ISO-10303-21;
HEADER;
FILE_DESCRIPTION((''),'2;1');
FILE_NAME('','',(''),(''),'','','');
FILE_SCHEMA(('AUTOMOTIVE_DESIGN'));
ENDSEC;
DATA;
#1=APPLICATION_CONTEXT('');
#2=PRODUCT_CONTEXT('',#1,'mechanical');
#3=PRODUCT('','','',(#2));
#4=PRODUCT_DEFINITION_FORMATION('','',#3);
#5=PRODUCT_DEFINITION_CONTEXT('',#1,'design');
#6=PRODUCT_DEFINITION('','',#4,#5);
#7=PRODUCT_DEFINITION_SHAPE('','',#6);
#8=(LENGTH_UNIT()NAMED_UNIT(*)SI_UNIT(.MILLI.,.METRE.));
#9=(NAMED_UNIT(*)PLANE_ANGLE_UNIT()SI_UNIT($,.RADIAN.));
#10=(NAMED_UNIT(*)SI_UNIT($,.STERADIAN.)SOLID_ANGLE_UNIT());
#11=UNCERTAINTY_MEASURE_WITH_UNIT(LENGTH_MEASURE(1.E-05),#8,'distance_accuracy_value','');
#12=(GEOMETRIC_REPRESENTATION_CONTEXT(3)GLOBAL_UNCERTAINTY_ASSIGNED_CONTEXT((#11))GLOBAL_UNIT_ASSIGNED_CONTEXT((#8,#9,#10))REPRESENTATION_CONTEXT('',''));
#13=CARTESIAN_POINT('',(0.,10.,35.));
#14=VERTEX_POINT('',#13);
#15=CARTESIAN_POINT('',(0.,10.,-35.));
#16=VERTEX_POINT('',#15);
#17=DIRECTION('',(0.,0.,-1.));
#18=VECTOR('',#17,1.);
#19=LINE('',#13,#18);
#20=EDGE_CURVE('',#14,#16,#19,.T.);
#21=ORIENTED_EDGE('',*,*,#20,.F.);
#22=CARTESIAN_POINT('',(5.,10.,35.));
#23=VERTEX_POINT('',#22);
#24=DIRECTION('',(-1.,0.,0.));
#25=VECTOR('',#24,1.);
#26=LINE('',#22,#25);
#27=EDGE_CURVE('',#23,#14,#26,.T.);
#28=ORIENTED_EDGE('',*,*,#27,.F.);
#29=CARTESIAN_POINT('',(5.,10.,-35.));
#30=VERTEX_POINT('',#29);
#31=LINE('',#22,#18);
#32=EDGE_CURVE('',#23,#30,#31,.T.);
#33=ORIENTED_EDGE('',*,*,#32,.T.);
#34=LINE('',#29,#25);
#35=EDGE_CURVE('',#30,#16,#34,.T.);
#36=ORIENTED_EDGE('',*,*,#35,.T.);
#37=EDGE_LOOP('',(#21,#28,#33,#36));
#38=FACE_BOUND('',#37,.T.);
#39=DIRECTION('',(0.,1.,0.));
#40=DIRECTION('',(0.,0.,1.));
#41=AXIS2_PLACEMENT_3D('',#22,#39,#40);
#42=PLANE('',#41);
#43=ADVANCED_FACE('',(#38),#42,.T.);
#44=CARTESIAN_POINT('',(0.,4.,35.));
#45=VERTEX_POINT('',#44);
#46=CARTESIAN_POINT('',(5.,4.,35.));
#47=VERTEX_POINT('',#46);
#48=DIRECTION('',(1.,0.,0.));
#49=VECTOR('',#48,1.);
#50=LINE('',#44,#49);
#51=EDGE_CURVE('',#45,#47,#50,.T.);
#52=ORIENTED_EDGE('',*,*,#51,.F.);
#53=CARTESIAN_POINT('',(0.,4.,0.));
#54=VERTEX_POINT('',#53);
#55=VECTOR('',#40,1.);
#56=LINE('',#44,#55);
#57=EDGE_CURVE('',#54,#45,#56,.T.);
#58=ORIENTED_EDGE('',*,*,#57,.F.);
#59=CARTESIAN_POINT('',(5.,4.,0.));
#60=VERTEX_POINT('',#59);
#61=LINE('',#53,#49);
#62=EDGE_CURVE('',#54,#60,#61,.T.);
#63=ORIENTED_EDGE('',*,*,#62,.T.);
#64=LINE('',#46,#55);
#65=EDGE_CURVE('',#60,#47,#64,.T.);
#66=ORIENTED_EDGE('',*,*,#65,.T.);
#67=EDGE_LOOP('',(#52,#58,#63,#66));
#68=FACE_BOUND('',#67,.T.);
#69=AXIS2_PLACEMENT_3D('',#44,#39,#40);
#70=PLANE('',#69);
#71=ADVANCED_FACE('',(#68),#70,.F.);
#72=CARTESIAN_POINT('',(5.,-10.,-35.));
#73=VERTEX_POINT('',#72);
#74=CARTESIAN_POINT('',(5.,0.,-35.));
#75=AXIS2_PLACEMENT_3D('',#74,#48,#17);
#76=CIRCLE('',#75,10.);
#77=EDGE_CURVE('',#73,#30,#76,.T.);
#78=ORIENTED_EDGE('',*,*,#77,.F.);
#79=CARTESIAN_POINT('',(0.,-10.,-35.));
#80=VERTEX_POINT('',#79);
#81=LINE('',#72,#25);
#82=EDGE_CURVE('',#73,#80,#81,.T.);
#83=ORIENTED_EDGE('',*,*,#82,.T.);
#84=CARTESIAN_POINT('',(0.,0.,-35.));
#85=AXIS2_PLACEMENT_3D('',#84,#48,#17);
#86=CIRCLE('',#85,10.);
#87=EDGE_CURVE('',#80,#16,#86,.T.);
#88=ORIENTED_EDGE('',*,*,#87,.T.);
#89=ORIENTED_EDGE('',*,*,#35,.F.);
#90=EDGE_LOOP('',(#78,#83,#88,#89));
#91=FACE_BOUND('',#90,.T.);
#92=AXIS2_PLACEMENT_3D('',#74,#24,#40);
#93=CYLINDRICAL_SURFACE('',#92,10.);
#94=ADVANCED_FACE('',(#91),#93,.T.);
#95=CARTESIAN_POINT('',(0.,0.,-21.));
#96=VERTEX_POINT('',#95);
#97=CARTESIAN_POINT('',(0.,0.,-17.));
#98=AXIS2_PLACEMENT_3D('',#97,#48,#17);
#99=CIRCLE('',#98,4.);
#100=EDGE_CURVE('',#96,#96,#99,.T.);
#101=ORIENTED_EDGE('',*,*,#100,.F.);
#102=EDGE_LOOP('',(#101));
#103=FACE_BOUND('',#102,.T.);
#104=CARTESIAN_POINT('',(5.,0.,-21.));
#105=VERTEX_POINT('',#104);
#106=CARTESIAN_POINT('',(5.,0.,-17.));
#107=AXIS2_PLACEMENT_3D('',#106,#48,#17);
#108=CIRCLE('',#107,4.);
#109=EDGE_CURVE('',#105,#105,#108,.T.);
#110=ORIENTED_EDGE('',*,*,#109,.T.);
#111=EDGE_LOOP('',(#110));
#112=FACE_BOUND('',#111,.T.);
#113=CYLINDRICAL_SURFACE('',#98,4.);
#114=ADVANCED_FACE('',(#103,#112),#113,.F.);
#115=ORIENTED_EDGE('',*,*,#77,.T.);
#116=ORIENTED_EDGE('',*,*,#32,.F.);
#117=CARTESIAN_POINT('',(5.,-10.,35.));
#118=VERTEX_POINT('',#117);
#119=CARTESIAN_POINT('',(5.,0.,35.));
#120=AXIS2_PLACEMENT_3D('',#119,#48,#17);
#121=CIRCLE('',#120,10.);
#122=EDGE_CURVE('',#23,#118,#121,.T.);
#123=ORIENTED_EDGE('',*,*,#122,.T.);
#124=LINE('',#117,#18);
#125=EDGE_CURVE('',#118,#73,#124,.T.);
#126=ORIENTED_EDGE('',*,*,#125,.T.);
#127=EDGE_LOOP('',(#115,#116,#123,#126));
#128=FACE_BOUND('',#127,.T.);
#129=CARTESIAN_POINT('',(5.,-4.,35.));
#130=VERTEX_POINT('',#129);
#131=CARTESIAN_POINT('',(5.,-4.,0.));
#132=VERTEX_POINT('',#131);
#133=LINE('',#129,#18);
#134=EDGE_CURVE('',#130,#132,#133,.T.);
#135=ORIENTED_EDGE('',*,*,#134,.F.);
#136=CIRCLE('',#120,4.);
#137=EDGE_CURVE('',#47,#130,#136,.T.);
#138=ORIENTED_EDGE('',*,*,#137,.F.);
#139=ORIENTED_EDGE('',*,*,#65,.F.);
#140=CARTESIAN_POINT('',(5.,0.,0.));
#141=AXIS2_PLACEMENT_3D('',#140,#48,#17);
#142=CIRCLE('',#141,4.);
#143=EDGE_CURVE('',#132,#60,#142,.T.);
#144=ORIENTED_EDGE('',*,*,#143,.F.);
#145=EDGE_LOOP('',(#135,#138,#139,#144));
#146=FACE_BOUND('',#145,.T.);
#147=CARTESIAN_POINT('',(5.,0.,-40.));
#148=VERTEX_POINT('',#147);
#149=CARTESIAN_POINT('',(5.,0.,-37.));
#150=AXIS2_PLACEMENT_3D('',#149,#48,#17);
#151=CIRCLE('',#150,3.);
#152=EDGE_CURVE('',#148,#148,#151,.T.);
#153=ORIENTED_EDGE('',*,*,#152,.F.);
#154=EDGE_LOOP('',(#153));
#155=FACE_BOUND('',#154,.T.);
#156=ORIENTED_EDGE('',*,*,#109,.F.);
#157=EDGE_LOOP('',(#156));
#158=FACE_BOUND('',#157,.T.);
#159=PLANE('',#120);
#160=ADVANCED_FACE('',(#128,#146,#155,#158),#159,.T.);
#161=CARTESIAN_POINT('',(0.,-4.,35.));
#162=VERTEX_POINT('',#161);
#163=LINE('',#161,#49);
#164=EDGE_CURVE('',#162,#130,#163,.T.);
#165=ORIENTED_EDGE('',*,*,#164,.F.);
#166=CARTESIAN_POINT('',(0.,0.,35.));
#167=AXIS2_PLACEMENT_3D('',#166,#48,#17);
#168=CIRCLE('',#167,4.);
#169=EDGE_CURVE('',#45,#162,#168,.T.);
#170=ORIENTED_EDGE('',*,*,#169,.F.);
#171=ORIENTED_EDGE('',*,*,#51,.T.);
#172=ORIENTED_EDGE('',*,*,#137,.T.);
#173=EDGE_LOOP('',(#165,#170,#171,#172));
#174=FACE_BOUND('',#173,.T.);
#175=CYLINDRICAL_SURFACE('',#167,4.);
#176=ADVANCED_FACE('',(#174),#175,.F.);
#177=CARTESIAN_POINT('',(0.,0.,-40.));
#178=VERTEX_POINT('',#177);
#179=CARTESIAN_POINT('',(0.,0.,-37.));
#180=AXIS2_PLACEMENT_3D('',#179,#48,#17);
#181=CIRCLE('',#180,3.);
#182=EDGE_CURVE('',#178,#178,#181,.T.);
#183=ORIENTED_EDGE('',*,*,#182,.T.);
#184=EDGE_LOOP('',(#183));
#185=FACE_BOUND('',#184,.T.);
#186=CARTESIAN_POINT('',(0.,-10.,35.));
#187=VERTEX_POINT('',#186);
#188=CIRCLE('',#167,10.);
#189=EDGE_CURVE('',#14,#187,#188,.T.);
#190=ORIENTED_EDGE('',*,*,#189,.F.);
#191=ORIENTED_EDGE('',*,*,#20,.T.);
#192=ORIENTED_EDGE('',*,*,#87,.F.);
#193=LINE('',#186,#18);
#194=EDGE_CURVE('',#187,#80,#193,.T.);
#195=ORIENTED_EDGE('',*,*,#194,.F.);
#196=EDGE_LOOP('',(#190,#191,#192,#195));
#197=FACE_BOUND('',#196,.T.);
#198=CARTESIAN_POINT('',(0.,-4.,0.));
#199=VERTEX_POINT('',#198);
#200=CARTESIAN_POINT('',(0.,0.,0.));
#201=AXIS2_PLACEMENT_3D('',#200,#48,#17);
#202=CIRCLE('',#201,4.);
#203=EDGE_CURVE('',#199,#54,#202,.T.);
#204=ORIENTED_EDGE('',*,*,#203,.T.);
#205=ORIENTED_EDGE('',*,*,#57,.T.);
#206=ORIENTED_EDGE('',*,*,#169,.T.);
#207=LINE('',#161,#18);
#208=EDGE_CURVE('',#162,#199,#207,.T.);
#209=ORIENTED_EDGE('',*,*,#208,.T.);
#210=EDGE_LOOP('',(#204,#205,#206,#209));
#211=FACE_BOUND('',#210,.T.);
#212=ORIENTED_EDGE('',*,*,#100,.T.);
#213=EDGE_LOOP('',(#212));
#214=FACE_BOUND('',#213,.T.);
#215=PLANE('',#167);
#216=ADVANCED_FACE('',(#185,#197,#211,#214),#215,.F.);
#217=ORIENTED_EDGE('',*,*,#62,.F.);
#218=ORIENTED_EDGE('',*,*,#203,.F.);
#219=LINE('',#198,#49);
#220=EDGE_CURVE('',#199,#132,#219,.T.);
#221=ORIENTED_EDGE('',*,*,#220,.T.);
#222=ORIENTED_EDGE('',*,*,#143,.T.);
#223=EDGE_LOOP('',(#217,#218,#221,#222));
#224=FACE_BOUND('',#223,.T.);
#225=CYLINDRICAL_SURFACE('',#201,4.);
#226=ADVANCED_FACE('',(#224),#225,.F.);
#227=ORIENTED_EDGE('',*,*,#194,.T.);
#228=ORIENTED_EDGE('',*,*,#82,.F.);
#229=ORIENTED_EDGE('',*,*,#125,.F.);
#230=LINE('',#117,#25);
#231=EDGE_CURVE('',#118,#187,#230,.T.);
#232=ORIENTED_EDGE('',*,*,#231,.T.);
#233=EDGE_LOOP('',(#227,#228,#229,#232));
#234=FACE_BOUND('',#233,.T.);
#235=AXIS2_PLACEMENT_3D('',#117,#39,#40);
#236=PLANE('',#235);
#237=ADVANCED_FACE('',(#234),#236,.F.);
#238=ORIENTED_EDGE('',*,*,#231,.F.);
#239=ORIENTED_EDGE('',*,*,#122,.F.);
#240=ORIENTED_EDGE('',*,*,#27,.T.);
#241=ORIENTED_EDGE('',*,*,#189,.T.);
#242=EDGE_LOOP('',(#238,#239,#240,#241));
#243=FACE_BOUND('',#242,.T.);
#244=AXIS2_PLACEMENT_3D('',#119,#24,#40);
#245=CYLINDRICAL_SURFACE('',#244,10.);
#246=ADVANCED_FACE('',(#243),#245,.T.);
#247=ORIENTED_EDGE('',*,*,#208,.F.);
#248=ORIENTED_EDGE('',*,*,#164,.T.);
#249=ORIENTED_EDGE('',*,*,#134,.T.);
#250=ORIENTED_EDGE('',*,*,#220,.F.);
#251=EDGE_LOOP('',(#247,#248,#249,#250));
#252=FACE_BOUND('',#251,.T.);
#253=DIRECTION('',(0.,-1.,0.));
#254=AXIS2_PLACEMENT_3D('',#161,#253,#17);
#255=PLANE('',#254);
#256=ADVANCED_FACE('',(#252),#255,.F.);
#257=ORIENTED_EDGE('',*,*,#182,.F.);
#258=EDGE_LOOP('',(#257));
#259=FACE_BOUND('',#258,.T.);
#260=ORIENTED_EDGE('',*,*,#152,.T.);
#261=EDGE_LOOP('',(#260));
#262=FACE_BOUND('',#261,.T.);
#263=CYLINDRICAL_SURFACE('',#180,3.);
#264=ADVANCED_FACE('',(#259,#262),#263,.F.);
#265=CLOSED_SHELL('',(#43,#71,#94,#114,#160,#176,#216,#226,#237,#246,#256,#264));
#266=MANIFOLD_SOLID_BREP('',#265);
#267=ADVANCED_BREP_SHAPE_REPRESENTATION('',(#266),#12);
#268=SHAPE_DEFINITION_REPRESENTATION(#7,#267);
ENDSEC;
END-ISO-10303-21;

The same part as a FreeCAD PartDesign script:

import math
import FreeCAD as App
import Part
import Sketcher
Q = App.Units.Quantity

doc = App.newDocument("Part")
params = doc.addObject("Spreadsheet::Sheet", "Params")
for row, (alias, value) in enumerate([
    ("sketch1_radius", "10 mm"),
    ("sketch1_height", "70 mm"),
    ("pad1_length", "5 mm"),
    ("sketch2_diameter", "8 mm"),
    ("sketch2_diameter2", "6 mm"),
    ("sketch2_height", "35 mm"),
], start=1):
    params.set(f"A{row}", alias)
    params.set(f"B{row}", "=" + value)
    params.setAlias(f"B{row}", alias)

body = doc.addObject("PartDesign::Body", "Body")

# Sketch on YZ plane
sketch1 = body.newObject("Sketcher::SketchObject", "Sketch")
sketch1.AttachmentSupport = (doc.getObject("YZ_Plane"), [""])
sketch1.MapMode = "FlatFace"
sketch1.addGeometry([
    Part.LineSegment(App.Vector(10, -35, 0), App.Vector(10, 35, 0)),
    Part.ArcOfCircle(Part.Circle(App.Vector(0, 35, 0), App.Vector(0, 0, 1), 10), math.radians(0), math.radians(180)),
    Part.LineSegment(App.Vector(-10, 35, 0), App.Vector(-10, -35, 0)),
    Part.ArcOfCircle(Part.Circle(App.Vector(0, -35, 0), App.Vector(0, 0, 1), 10), math.radians(180), math.radians(360)),
], False)
sketch1.addConstraint([
    Sketcher.Constraint("Tangent", 0, 2, 1, 1),
    Sketcher.Constraint("Tangent", 1, 2, 2, 1),
    Sketcher.Constraint("Tangent", 2, 2, 3, 1),
    Sketcher.Constraint("Tangent", 3, 2, 0, 1),
    Sketcher.Constraint("Vertical", 0),
    Sketcher.Constraint("Vertical", 2),
    Sketcher.Constraint("Symmetric", 1, 3, 3, 3, -1, 1),
    Sketcher.Constraint("Radius", 1, Q("10 mm")),
    Sketcher.Constraint("DistanceY", 0, 1, 0, 2, Q("70 mm")),
])
sketch1.setExpression("Constraints[7]", "Params.sketch1_radius")
sketch1.setExpression("Constraints[8]", "Params.sketch1_height")
pad1 = body.newObject("PartDesign::Pad", "Pad")
pad1.Profile = sketch1
pad1.setExpression("Length", "Params.pad1_length")

# Sketch on YZ plane
sketch2 = body.newObject("Sketcher::SketchObject", "Sketch001")
sketch2.AttachmentSupport = (doc.getObject("YZ_Plane"), [""])
sketch2.MapMode = "FlatFace"
sketch2.AttachmentOffset = App.Placement(App.Vector(0, 0, 5), App.Rotation())
sketch2.addGeometry([
    Part.Circle(App.Vector(0, -17, 0), App.Vector(0, 0, 1), 4),  # 0
    Part.Circle(App.Vector(0, -37, 0), App.Vector(0, 0, 1), 3),  # 1
    Part.LineSegment(App.Vector(4, 0, 0), App.Vector(4, 35, 0)),  # 2
    Part.ArcOfCircle(Part.Circle(App.Vector(0, 35, 0), App.Vector(0, 0, 1), 4), math.radians(0), math.radians(180)),  # 3
    Part.LineSegment(App.Vector(-4, 35, 0), App.Vector(-4, 0, 0)),  # 4
    Part.ArcOfCircle(Part.Circle(App.Vector(0, 0, 0), App.Vector(0, 0, 1), 4), math.radians(180), math.radians(360)),  # 5
], False)
sketch2.addConstraint([
    Sketcher.Constraint("Tangent", 2, 2, 3, 1),
    Sketcher.Constraint("Tangent", 3, 2, 4, 1),
    Sketcher.Constraint("Tangent", 4, 2, 5, 1),
    Sketcher.Constraint("Tangent", 5, 2, 2, 1),
    Sketcher.Constraint("Vertical", 2),
    Sketcher.Constraint("Vertical", 4),
    Sketcher.Constraint("Coincident", 5, 3, -1, 1),
    Sketcher.Constraint("Equal", 0, 3),
    Sketcher.Constraint("PointOnObject", 0, 3, -2),
    Sketcher.Constraint("PointOnObject", 1, 3, -2),
    Sketcher.Constraint("Diameter", 0, Q("8 mm")),
    Sketcher.Constraint("Diameter", 1, Q("6 mm")),
    Sketcher.Constraint("DistanceY", 2, 1, 2, 2, Q("35 mm")),
    Sketcher.Constraint("DistanceY", 0, 3, -1, 1, Q("17 mm")),
    Sketcher.Constraint("DistanceY", 1, 3, -1, 1, Q("37 mm")),
])
sketch2.setExpression("Constraints[10]", "Params.sketch2_diameter")
sketch2.setExpression("Constraints[11]", "Params.sketch2_diameter2")
sketch2.setExpression("Constraints[12]", "Params.sketch2_height")
pocket1 = body.newObject("PartDesign::Pocket", "Pocket")
pocket1.Profile = sketch2
pocket1.Type = "ThroughAll"

doc.recompute()
